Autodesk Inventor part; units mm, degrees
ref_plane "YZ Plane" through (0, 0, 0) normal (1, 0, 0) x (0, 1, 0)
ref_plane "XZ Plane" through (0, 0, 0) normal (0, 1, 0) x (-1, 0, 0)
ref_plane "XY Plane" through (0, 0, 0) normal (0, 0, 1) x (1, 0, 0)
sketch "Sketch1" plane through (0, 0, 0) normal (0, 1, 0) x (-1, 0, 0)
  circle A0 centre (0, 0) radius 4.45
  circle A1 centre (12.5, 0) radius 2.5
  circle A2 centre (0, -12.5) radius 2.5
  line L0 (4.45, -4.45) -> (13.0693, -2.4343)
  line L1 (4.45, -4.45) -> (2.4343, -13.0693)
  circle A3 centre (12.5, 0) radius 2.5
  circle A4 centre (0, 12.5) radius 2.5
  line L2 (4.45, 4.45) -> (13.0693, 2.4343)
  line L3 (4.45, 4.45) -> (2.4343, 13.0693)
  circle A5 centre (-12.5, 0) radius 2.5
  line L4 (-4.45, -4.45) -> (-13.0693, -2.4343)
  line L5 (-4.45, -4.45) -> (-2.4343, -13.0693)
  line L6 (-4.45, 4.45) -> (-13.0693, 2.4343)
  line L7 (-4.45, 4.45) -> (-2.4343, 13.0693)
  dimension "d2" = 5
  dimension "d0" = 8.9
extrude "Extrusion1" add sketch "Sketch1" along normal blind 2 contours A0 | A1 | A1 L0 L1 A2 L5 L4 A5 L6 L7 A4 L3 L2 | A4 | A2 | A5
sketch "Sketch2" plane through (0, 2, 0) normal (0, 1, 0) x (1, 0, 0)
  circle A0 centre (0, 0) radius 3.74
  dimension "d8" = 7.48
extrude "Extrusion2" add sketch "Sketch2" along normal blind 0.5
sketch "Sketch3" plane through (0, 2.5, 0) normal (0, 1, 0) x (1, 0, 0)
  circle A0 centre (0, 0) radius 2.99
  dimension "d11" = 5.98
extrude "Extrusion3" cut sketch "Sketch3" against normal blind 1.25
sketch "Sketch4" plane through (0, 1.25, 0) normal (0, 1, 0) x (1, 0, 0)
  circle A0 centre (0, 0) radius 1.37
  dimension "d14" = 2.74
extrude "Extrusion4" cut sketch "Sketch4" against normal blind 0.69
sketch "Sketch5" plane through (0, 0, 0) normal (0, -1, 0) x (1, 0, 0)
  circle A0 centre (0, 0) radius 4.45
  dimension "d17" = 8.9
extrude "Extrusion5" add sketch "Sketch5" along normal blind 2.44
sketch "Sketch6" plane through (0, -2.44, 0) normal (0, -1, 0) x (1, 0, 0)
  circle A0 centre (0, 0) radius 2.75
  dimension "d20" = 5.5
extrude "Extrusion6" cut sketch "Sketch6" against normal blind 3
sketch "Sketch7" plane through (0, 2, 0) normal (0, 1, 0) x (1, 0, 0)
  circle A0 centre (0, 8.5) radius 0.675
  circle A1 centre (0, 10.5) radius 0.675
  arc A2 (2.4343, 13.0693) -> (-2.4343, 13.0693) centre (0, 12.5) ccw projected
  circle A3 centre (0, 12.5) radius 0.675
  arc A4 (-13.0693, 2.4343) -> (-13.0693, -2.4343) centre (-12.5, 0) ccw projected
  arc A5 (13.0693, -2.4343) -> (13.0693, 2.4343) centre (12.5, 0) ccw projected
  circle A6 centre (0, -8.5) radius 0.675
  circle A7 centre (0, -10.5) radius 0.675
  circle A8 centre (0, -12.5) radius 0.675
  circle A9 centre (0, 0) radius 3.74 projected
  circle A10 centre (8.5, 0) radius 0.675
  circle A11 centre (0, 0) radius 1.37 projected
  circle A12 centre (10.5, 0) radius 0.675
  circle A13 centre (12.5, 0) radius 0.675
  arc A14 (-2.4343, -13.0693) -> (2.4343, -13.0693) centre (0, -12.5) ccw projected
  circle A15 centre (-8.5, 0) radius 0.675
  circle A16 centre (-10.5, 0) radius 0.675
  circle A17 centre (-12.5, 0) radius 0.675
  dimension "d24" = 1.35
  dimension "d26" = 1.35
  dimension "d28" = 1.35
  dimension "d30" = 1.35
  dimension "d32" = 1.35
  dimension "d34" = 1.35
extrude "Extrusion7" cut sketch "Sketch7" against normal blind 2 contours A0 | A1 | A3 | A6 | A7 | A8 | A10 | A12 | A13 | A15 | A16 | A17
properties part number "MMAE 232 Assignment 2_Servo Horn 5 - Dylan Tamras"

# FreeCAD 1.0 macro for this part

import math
import FreeCAD as App
import Part
import Sketcher

doc = App.newDocument("Part")
body = doc.addObject("PartDesign::Body", "Body")

sketch1 = body.newObject("Sketcher::SketchObject", "Sketch")
sketch1.AttachmentSupport = (doc.getObject("XZ_Plane"), [""])
sketch1.MapMode = "FlatFace"
sketch1.addGeometry(Part.LineSegment(App.Vector(-4.45, -4.45, 0), App.Vector(-13.0693, -2.4343, 0)), False)
sketch1.addGeometry(Part.ArcOfCircle(Part.Circle(App.Vector(-12.5, 0, 0), App.Vector(0, 0, 1), 2.5), math.radians(103.162963), math.radians(256.837037)), False)
sketch1.addGeometry(Part.LineSegment(App.Vector(-13.0693, 2.4343, 0), App.Vector(-4.45, 4.45, 0)), False)
sketch1.addGeometry(Part.LineSegment(App.Vector(-4.45, 4.45, 0), App.Vector(-2.4343, 13.0693, 0)), False)
sketch1.addGeometry(Part.ArcOfCircle(Part.Circle(App.Vector(0, 12.5, 0), App.Vector(0, 0, 1), 2.5), math.radians(13.162963), math.radians(166.837037)), False)
sketch1.addGeometry(Part.LineSegment(App.Vector(2.4343, 13.0693, 0), App.Vector(4.45, 4.45, 0)), False)
sketch1.addGeometry(Part.LineSegment(App.Vector(4.45, 4.45, 0), App.Vector(13.0693, 2.4343, 0)), False)
sketch1.addGeometry(Part.ArcOfCircle(Part.Circle(App.Vector(12.5, 0, 0), App.Vector(0, 0, 1), 2.5), math.radians(-76.837037), math.radians(76.837037)), False)
sketch1.addGeometry(Part.LineSegment(App.Vector(13.0693, -2.4343, 0), App.Vector(4.45, -4.45, 0)), False)
sketch1.addGeometry(Part.LineSegment(App.Vector(4.45, -4.45, 0), App.Vector(2.4343, -13.0693, 0)), False)
sketch1.addGeometry(Part.ArcOfCircle(Part.Circle(App.Vector(0, -12.5, 0), App.Vector(0, 0, 1), 2.5), math.radians(-166.837037), math.radians(-13.162963)), False)
sketch1.addGeometry(Part.LineSegment(App.Vector(-2.4343, -13.0693, 0), App.Vector(-4.45, -4.45, 0)), False)
sketch1.addConstraint(Sketcher.Constraint("Tangent", 0, 2, 1, 2))
sketch1.addConstraint(Sketcher.Constraint("Tangent", 1, 1, 2, 1))
sketch1.addConstraint(Sketcher.Constraint("Coincident", 2, 2, 3, 1))
sketch1.addConstraint(Sketcher.Constraint("Tangent", 3, 2, 4, 2))
sketch1.addConstraint(Sketcher.Constraint("Tangent", 4, 1, 5, 1))
sketch1.addConstraint(Sketcher.Constraint("Coincident", 5, 2, 6, 1))
sketch1.addConstraint(Sketcher.Constraint("Tangent", 6, 2, 7, 2))
sketch1.addConstraint(Sketcher.Constraint("Tangent", 7, 1, 8, 1))
sketch1.addConstraint(Sketcher.Constraint("Coincident", 8, 2, 9, 1))
sketch1.addConstraint(Sketcher.Constraint("Tangent", 9, 2, 10, 2))
sketch1.addConstraint(Sketcher.Constraint("Tangent", 10, 1, 11, 1))
sketch1.addConstraint(Sketcher.Constraint("Coincident", 11, 2, 0, 1))
sketch1.addConstraint(Sketcher.Constraint("Equal", 1, 4))
sketch1.addConstraint(Sketcher.Constraint("Equal", 4, 7))
sketch1.addConstraint(Sketcher.Constraint("Equal", 7, 10))
sketch1.addConstraint(Sketcher.Constraint("Symmetric", 1, 3, 7, 3, -1, 1))
sketch1.addConstraint(Sketcher.Constraint("Symmetric", 4, 3, 10, 3, -1, 1))
sketch1.addConstraint(Sketcher.Constraint("Symmetric", 2, 2, 8, 2, -1, 1))
sketch1.addConstraint(Sketcher.Constraint("Symmetric", 5, 2, 11, 2, -1, 1))
sketch1.addConstraint(Sketcher.Constraint("Symmetric", 3, 2, 4, 1, -2))
sketch1.addConstraint(Sketcher.Constraint("Symmetric", 1, 1, 6, 2, -2))
sketch1.addConstraint(Sketcher.Constraint("Perpendicular", 0, 3))
sketch1.addConstraint(Sketcher.Constraint("Equal", 2, 3))
sketch1.addConstraint(Sketcher.Constraint("Radius", 1, 2.5))
sketch1.addConstraint(Sketcher.Constraint("DistanceX", 2, 2, 5, 2, 8.9))
sketch1.addConstraint(Sketcher.Constraint("DistanceX", 1, 3, 7, 3, 25.0))
pad1 = body.newObject("PartDesign::Pad", "Pad")
pad1.Profile = sketch1
pad1.Length = 2
pad1.Reversed = True

sketch2 = body.newObject("Sketcher::SketchObject", "Sketch001")
sketch2.AttachmentSupport = (doc.getObject("XZ_Plane"), [""])
sketch2.MapMode = "FlatFace"
sketch2.AttachmentOffset = App.Placement(App.Vector(0, 0, -2), App.Rotation())
sketch2.addGeometry(Part.Circle(App.Vector(0, 0, 0), App.Vector(0, 0, 1), 3.74), False)
sketch2.addConstraint(Sketcher.Constraint("Coincident", 0, 3, -1, 1))
sketch2.addConstraint(Sketcher.Constraint("Diameter", 0, 7.48))
pad2 = body.newObject("PartDesign::Pad", "Pad001")
pad2.Profile = sketch2
pad2.Length = 0.5
pad2.Reversed = True

sketch3 = body.newObject("Sketcher::SketchObject", "Sketch002")
sketch3.AttachmentSupport = (doc.getObject("XZ_Plane"), [""])
sketch3.MapMode = "FlatFace"
sketch3.AttachmentOffset = App.Placement(App.Vector(0, 0, -2.5), App.Rotation())
sketch3.addGeometry(Part.Circle(App.Vector(0, 0, 0), App.Vector(0, 0, 1), 2.99), False)
sketch3.addConstraint(Sketcher.Constraint("Coincident", 0, 3, -1, 1))
sketch3.addConstraint(Sketcher.Constraint("Diameter", 0, 5.98))
pocket1 = body.newObject("PartDesign::Pocket", "Pocket")
pocket1.Profile = sketch3
pocket1.Length = 1.25
pocket1.Reversed = True

sketch4 = body.newObject("Sketcher::SketchObject", "Sketch003")
sketch4.AttachmentSupport = (doc.getObject("XZ_Plane"), [""])
sketch4.MapMode = "FlatFace"
sketch4.AttachmentOffset = App.Placement(App.Vector(0, 0, -1.25), App.Rotation())
sketch4.addGeometry(Part.Circle(App.Vector(0, 0, 0), App.Vector(0, 0, 1), 1.37), False)
sketch4.addConstraint(Sketcher.Constraint("Coincident", 0, 3, -1, 1))
sketch4.addConstraint(Sketcher.Constraint("Diameter", 0, 2.74))
pocket2 = body.newObject("PartDesign::Pocket", "Pocket001")
pocket2.Profile = sketch4
pocket2.Length = 0.69
pocket2.Reversed = True

sketch5 = body.newObject("Sketcher::SketchObject", "Sketch004")
sketch5.AttachmentSupport = (doc.getObject("XZ_Plane"), [""])
sketch5.MapMode = "FlatFace"
sketch5.addGeometry(Part.Circle(App.Vector(0, 0, 0), App.Vector(0, 0, 1), 4.45), False)
sketch5.addConstraint(Sketcher.Constraint("Coincident", 0, 3, -1, 1))
sketch5.addConstraint(Sketcher.Constraint("Diameter", 0, 8.9))
pad3 = body.newObject("PartDesign::Pad", "Pad002")
pad3.Profile = sketch5
pad3.Length = 2.44

sketch6 = body.newObject("Sketcher::SketchObject", "Sketch005")
sketch6.AttachmentSupport = (doc.getObject("XZ_Plane"), [""])
sketch6.MapMode = "FlatFace"
sketch6.AttachmentOffset = App.Placement(App.Vector(0, 0, 2.44), App.Rotation())
sketch6.addGeometry(Part.Circle(App.Vector(0, 0, 0), App.Vector(0, 0, 1), 2.75), False)
sketch6.addConstraint(Sketcher.Constraint("Coincident", 0, 3, -1, 1))
sketch6.addConstraint(Sketcher.Constraint("Diameter", 0, 5.5))
pocket3 = body.newObject("PartDesign::Pocket", "Pocket002")
pocket3.Profile = sketch6
pocket3.Length = 3

sketch7 = body.newObject("Sketcher::SketchObject", "Sketch006")
sketch7.AttachmentSupport = (doc.getObject("XZ_Plane"), [""])
sketch7.MapMode = "FlatFace"
sketch7.AttachmentOffset = App.Placement(App.Vector(0, 0, -2), App.Rotation())
sketch7.addGeometry(Part.Circle(App.Vector(0, -8.5, 0), App.Vector(0, 0, 1), 0.675), False)
sketch7.addGeometry(Part.Circle(App.Vector(0, -10.5, 0), App.Vector(0, 0, 1), 0.675), False)
sketch7.addGeometry(Part.Circle(App.Vector(0, -12.5, 0), App.Vector(0, 0, 1), 0.675), False)
sketch7.addGeometry(Part.Circle(App.Vector(0, 8.5, 0), App.Vector(0, 0, 1), 0.675), False)
sketch7.addGeometry(Part.Circle(App.Vector(0, 10.5, 0), App.Vector(0, 0, 1), 0.675), False)
sketch7.addGeometry(Part.Circle(App.Vector(0, 12.5, 0), App.Vector(0, 0, 1), 0.675), False)
sketch7.addGeometry(Part.Circle(App.Vector(8.5, 0, 0), App.Vector(0, 0, 1), 0.675), False)
sketch7.addGeometry(Part.Circle(App.Vector(10.5, 0, 0), App.Vector(0, 0, 1), 0.675), False)
sketch7.addGeometry(Part.Circle(App.Vector(12.5, 0, 0), App.Vector(0, 0, 1), 0.675), False)
sketch7.addGeometry(Part.Circle(App.Vector(-8.5, 0, 0), App.Vector(0, 0, 1), 0.675), False)
sketch7.addGeometry(Part.Circle(App.Vector(-10.5, 0, 0), App.Vector(0, 0, 1), 0.675), False)
sketch7.addGeometry(Part.Circle(App.Vector(-12.5, 0, 0), App.Vector(0, 0, 1), 0.675), False)
sketch7.addConstraint(Sketcher.Constraint("Equal", 0, 1))
sketch7.addConstraint(Sketcher.Constraint("Equal", 1, 2))
sketch7.addConstraint(Sketcher.Constraint("Equal", 2, 3))
sketch7.addConstraint(Sketcher.Constraint("Equal", 3, 4))
sketch7.addConstraint(Sketcher.Constraint("Equal", 4, 5))
sketch7.addConstraint(Sketcher.Constraint("Equal", 5, 6))
sketch7.addConstraint(Sketcher.Constraint("Equal", 6, 7))
sketch7.addConstraint(Sketcher.Constraint("Equal", 7, 8))
sketch7.addConstraint(Sketcher.Constraint("Equal", 8, 9))
sketch7.addConstraint(Sketcher.Constraint("Equal", 9, 10))
sketch7.addConstraint(Sketcher.Constraint("Equal", 10, 11))
sketch7.addConstraint(Sketcher.Constraint("Symmetric", 0, 3, 3, 3, -1, 1))
sketch7.addConstraint(Sketcher.Constraint("Symmetric", 1, 3, 4, 3, -1, 1))
sketch7.addConstraint(Sketcher.Constraint("Symmetric", 2, 3, 5, 3, -1, 1))
sketch7.addConstraint(Sketcher.Constraint("Symmetric", 6, 3, 9, 3, -1, 1))
sketch7.addConstraint(Sketcher.Constraint("Symmetric", 7, 3, 10, 3, -1, 1))
sketch7.addConstraint(Sketcher.Constraint("Symmetric", 8, 3, 11, 3, -1, 1))
sketch7.addConstraint(Sketcher.Constraint("PointOnObject", 0, 3, -2))
sketch7.addConstraint(Sketcher.Constraint("PointOnObject", 1, 3, -2))
sketch7.addConstraint(Sketcher.Constraint("PointOnObject", 2, 3, -2))
sketch7.addConstraint(Sketcher.Constraint("PointOnObject", 6, 3, -1))
sketch7.addConstraint(Sketcher.Constraint("PointOnObject", 7, 3, -1))
sketch7.addConstraint(Sketcher.Constraint("PointOnObject", 8, 3, -1))
sketch7.addConstraint(Sketcher.Constraint("Diameter", 0, 1.35))
sketch7.addConstraint(Sketcher.Constraint("DistanceY", 1, 3, 0, 3, 2.0))
sketch7.addConstraint(Sketcher.Constraint("DistanceY", 2, 3, 1, 3, 2.0))
sketch7.addConstraint(Sketcher.Constraint("DistanceY", 0, 3, 3, 3, 17.0))
sketch7.addConstraint(Sketcher.Constraint("DistanceX", 6, 3, 7, 3, 2.0))
sketch7.addConstraint(Sketcher.Constraint("DistanceX", 7, 3, 8, 3, 2.0))
sketch7.addConstraint(Sketcher.Constraint("DistanceX", -1, 1, 6, 3, 8.5))
pocket4 = body.newObject("PartDesign::Pocket", "Pocket003")
pocket4.Profile = sketch7
pocket4.Length = 2
pocket4.Reversed = True

doc.recompute()
